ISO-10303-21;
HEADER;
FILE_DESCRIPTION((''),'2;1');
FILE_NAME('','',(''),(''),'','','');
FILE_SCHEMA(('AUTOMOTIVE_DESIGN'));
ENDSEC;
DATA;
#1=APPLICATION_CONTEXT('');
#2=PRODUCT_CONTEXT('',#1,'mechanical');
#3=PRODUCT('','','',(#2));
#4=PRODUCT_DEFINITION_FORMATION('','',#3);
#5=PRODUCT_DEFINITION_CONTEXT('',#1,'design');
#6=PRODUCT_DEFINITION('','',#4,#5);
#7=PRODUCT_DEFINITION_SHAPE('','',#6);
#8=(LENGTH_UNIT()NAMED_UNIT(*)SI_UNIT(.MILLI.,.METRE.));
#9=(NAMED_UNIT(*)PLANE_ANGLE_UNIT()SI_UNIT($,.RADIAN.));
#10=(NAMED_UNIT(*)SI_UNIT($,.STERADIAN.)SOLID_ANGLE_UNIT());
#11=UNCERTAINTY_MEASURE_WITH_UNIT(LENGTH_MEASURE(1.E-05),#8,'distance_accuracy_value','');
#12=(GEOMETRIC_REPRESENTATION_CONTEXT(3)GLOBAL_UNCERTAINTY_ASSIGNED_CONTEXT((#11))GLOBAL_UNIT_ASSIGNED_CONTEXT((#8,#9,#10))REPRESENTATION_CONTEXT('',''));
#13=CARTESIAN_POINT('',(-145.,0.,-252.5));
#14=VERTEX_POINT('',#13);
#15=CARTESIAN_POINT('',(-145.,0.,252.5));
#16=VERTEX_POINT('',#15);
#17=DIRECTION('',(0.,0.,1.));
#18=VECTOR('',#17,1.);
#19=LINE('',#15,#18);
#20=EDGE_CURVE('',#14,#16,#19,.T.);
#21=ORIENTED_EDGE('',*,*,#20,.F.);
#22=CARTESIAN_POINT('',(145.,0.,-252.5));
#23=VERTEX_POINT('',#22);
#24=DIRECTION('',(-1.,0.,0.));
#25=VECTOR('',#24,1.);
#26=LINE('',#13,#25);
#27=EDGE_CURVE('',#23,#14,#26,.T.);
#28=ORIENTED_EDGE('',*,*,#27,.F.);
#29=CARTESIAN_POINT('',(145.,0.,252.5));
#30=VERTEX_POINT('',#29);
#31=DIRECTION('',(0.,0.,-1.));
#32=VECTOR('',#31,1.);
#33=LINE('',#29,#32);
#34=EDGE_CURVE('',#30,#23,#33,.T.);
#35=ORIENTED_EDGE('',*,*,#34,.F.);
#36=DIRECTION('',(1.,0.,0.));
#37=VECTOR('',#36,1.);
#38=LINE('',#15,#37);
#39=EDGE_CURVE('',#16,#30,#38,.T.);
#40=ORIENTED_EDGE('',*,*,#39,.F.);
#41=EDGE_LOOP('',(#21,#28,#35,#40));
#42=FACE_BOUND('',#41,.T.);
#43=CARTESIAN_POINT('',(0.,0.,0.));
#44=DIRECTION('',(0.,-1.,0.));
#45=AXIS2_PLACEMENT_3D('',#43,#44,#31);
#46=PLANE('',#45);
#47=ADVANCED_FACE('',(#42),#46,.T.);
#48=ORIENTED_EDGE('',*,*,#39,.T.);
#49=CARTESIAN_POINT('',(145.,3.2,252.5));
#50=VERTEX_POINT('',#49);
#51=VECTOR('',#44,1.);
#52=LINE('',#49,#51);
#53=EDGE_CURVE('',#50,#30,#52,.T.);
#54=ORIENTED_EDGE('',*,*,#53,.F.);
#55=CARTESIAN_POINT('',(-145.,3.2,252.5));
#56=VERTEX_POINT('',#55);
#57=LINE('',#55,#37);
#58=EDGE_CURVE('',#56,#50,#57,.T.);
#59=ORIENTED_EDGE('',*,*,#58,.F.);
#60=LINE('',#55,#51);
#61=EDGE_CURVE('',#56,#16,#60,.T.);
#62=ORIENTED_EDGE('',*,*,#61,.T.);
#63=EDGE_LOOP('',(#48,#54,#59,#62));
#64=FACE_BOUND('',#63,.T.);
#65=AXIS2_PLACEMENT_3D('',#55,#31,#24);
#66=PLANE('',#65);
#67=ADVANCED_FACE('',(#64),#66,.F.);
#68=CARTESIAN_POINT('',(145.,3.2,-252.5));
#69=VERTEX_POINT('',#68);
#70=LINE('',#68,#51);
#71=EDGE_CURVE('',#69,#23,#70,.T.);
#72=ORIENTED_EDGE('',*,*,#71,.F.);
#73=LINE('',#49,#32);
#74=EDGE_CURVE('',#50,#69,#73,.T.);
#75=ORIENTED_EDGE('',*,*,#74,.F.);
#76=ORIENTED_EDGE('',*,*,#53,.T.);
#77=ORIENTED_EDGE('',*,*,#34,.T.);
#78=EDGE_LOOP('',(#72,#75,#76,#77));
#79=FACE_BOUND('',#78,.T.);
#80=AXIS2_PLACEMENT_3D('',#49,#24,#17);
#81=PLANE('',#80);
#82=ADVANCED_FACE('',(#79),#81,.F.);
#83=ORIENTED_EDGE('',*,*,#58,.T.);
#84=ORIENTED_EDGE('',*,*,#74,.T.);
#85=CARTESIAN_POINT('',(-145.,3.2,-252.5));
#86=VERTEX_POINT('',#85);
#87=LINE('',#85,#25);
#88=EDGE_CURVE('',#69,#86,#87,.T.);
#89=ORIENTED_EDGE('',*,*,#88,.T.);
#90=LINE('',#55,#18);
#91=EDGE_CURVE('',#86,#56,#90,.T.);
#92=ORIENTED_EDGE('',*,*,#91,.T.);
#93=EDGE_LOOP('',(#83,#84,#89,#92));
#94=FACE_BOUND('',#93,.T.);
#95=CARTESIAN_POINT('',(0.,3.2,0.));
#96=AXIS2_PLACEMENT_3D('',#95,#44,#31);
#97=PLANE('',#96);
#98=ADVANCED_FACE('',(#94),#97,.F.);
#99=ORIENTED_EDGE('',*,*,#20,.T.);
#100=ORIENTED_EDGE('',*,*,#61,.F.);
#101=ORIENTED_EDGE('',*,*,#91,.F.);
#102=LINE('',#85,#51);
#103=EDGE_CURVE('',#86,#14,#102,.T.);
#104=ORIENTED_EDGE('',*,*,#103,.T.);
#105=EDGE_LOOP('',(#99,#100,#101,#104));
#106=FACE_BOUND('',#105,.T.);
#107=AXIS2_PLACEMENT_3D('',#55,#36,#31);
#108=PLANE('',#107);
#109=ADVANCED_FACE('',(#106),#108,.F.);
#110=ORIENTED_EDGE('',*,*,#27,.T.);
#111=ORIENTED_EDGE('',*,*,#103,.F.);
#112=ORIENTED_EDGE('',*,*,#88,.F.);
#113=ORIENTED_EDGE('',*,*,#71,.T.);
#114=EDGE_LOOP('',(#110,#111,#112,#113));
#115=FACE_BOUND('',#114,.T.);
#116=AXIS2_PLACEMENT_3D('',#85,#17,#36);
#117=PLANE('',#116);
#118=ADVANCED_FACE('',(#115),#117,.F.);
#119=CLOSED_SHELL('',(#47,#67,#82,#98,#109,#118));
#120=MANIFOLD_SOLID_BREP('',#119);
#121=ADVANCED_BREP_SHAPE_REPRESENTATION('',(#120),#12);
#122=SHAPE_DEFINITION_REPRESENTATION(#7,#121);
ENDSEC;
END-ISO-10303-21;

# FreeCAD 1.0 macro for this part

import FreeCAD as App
import Part
import Sketcher

V = App.Vector
Q = App.Units.Quantity

doc = App.newDocument("Part")
body = doc.addObject("PartDesign::Body", "Body")

# Sketch on XZ plane
sketch1 = body.newObject("Sketcher::SketchObject", "Sketch")
sketch1.AttachmentSupport = (doc.getObject("XZ_Plane"), [""])
sketch1.MapMode = "FlatFace"
sketch1.addGeometry([
    Part.LineSegment(V(-145, -252, 0), V(-145, 252, 0)),
    Part.LineSegment(V(-145, 252, 0), V(145, 252, 0)),
    Part.LineSegment(V(145, 252, 0), V(145, -252, 0)),
    Part.LineSegment(V(145, -252, 0), V(-145, -252, 0)),
], False)
sketch1.addConstraint([
    Sketcher.Constraint("Coincident", 0, 2, 1, 1),
    Sketcher.Constraint("Coincident", 1, 2, 2, 1),
    Sketcher.Constraint("Coincident", 2, 2, 3, 1),
    Sketcher.Constraint("Coincident", 3, 2, 0, 1),
    Sketcher.Constraint("Vertical", 0),
    Sketcher.Constraint("Horizontal", 1),
    Sketcher.Constraint("Vertical", 2),
    Sketcher.Constraint("Horizontal", 3),
    Sketcher.Constraint("Symmetric", 0, 2, 2, 2, -1, 1),
    Sketcher.Constraint("DistanceX", 1, 1, 1, 2, Q("290 mm")),
    Sketcher.Constraint("DistanceY", 0, 1, 0, 2, Q("505 mm")),
])
pad1 = body.newObject("PartDesign::Pad", "Pad")
pad1.Profile = sketch1
pad1.Length = 3.2
pad1.Reversed = True

doc.recompute()
